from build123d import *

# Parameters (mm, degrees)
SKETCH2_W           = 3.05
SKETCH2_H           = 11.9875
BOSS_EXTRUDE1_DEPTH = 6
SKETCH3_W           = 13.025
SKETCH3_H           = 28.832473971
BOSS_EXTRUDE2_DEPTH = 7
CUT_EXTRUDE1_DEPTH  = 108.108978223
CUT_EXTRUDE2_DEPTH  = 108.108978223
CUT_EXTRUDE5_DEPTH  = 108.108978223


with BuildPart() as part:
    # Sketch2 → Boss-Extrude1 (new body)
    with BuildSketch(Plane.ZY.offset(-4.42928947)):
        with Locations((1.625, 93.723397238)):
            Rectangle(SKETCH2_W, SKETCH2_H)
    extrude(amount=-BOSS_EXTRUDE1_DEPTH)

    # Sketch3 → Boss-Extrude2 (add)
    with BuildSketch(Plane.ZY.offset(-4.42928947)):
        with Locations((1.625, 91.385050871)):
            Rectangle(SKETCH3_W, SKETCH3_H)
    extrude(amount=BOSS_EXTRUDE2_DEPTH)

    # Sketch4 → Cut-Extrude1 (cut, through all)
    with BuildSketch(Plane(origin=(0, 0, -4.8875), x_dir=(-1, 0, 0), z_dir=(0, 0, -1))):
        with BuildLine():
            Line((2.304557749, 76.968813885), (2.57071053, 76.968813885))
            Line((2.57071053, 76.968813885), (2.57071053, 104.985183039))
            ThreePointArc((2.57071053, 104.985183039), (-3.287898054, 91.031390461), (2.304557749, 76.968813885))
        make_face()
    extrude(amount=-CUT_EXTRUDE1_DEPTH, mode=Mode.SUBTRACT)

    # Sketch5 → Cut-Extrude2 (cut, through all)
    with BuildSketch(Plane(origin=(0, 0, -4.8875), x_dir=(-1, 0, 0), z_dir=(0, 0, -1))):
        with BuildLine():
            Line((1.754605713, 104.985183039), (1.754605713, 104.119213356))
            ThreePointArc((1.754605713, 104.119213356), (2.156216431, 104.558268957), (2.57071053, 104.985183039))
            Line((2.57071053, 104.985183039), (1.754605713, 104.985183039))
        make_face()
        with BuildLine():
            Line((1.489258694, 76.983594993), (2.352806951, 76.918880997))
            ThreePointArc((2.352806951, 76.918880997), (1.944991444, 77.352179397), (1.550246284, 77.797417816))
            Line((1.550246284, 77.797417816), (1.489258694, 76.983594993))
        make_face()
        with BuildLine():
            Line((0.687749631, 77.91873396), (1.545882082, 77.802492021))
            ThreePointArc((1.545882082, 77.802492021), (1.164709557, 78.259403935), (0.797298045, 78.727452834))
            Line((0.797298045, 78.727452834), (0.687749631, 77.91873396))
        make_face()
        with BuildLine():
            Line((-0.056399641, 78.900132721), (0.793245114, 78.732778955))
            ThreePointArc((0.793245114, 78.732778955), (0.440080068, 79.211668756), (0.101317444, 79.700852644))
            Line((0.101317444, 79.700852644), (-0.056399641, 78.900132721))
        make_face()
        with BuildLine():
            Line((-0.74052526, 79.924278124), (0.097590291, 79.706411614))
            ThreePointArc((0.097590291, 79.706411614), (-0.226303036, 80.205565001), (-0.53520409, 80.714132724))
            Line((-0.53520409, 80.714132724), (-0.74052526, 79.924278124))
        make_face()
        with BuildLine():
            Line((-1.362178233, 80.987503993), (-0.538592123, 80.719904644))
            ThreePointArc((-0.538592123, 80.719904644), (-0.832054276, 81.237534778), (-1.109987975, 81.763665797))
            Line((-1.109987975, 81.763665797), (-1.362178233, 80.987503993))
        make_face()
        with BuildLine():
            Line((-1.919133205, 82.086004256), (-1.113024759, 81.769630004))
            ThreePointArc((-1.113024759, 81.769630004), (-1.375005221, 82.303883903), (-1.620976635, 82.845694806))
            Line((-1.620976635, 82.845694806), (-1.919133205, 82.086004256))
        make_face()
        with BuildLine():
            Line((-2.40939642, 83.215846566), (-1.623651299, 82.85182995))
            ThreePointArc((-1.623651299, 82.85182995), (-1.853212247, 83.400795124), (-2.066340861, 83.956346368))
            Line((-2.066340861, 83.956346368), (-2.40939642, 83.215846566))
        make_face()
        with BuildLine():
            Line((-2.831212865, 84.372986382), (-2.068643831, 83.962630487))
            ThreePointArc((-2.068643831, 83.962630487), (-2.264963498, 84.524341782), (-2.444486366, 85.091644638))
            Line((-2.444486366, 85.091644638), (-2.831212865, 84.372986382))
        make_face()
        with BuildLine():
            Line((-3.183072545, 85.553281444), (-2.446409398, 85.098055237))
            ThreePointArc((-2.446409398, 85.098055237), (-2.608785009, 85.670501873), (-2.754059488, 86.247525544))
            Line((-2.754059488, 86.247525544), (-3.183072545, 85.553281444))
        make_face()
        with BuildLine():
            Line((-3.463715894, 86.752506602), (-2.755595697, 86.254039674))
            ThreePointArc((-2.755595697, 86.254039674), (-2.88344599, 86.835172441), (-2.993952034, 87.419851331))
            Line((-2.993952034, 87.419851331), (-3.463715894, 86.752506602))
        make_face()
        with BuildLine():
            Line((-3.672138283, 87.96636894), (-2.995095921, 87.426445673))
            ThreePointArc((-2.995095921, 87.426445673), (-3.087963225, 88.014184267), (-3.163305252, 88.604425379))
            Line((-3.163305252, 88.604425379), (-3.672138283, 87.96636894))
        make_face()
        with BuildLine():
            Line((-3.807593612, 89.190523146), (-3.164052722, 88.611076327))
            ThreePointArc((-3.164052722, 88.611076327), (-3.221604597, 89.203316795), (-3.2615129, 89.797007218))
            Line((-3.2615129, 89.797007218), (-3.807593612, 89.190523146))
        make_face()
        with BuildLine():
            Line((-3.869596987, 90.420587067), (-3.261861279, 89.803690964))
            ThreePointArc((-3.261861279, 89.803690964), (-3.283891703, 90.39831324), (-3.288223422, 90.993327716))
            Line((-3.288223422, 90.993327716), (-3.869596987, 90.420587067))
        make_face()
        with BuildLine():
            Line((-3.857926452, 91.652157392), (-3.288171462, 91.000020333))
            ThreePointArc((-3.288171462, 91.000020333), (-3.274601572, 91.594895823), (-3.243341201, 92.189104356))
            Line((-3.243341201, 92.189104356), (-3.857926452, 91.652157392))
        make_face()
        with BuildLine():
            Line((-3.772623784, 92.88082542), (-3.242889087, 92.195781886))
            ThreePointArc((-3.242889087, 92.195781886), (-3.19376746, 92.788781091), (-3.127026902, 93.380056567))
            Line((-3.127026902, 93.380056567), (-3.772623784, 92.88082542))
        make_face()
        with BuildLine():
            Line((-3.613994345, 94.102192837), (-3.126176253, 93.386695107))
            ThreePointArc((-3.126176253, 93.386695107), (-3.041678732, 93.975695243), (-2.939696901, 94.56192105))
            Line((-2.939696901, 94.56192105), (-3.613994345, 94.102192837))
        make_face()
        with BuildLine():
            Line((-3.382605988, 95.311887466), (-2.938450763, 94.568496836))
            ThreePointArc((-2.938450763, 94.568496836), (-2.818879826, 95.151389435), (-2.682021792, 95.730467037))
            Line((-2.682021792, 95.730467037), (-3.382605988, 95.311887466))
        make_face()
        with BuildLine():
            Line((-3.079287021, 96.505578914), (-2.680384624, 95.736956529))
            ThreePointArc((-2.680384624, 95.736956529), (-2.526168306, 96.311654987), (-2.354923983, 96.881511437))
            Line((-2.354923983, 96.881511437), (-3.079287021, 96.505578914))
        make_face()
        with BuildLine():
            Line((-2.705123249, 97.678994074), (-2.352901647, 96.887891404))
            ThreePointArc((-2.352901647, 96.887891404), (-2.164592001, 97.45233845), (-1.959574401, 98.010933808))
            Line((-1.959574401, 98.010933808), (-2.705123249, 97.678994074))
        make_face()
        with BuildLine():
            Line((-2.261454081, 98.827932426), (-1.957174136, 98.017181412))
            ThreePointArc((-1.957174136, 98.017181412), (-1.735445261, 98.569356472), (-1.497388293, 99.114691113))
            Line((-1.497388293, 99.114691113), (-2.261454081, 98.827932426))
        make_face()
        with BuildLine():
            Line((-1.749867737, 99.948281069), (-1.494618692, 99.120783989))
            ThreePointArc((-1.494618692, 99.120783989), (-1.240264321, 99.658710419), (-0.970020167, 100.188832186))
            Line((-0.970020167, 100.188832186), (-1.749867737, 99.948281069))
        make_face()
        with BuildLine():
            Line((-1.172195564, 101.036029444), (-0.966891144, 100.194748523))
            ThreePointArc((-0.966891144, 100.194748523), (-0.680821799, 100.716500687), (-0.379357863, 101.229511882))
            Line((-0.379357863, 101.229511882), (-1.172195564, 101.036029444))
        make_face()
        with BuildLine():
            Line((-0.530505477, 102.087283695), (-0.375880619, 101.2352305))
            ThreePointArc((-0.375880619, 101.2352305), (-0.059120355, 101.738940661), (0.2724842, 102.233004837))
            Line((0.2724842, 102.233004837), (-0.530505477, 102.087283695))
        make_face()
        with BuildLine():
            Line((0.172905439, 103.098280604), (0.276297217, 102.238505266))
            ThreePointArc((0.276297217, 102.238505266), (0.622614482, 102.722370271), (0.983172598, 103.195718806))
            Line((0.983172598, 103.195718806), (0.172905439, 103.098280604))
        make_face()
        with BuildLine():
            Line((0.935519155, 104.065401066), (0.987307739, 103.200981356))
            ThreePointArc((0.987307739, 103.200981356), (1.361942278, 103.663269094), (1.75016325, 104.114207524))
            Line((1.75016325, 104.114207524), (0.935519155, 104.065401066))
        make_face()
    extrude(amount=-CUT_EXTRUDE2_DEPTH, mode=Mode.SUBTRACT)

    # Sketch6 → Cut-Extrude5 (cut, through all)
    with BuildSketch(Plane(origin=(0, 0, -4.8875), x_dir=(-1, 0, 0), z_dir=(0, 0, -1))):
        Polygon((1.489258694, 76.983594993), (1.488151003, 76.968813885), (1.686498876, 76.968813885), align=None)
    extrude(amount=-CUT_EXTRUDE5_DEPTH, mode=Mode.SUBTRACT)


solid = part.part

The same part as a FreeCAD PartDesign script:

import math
import FreeCAD as App
import Part
import Sketcher
Q = App.Units.Quantity


def add_polygon(sketch, points):
    """Adds a closed chain of lines whose ends are joined by coincident constraints."""
    first, n = sketch.GeometryCount, len(points)
    for a, b in zip(points, points[1:] + points[:1]):
        sketch.addGeometry(Part.LineSegment(App.Vector(*a, 0), App.Vector(*b, 0)), False)
    for i in range(n):
        sketch.addConstraint(Sketcher.Constraint("Coincident", first + i, 2, first + (i + 1) % n, 1))

doc = App.newDocument("Part")
body = doc.addObject("PartDesign::Body", "Body")

sketch1 = body.newObject("Sketcher::SketchObject", "Sketch")
sketch1.AttachmentSupport = (doc.getObject("YZ_Plane"), [""])
sketch1.MapMode = "FlatFace"
sketch1.AttachmentOffset = App.Placement(App.Vector(0, 0, 4.429289), App.Rotation())
add_polygon(sketch1, [(99.7, 0.1), (87.7, 0.1), (87.7, 3.1), (99.7, 3.1)])
sketch1.addConstraint(Sketcher.Constraint("Horizontal", 0))
sketch1.addConstraint(Sketcher.Constraint("Vertical", 1))
sketch1.addConstraint(Sketcher.Constraint("Horizontal", 2))
sketch1.addConstraint(Sketcher.Constraint("Vertical", 3))
sketch1.addConstraint(Sketcher.Constraint("DistanceY", 1, 1, 1, 2, 3.05))
sketch1.addConstraint(Sketcher.Constraint("DistanceY", -1, 1, 0, 2, 0.1))
sketch1.addConstraint(Sketcher.Constraint("DistanceX", 0, 2, 0, 1, 11.9875))
sketch1.addConstraint(Sketcher.Constraint("DistanceX", -1, 1, 0, 2, 87.729647))
pad1 = body.newObject("PartDesign::Pad", "Pad")
pad1.Profile = sketch1
pad1.Length = 6

sketch2 = body.newObject("Sketcher::SketchObject", "Sketch001")
sketch2.AttachmentSupport = (doc.getObject("YZ_Plane"), [""])
sketch2.MapMode = "FlatFace"
sketch2.AttachmentOffset = App.Placement(App.Vector(0, 0, 4.429289), App.Rotation())
add_polygon(sketch2, [(106, -5), (77, -5), (77, 8), (106, 8)])
sketch2.addConstraint(Sketcher.Constraint("Horizontal", 0))
sketch2.addConstraint(Sketcher.Constraint("Vertical", 1))
sketch2.addConstraint(Sketcher.Constraint("Horizontal", 2))
sketch2.addConstraint(Sketcher.Constraint("Vertical", 3))
sketch2.addConstraint(Sketcher.Constraint("DistanceY", 1, 1, 1, 2, 13.025))
sketch2.addConstraint(Sketcher.Constraint("DistanceY", 0, 2, -1, 1, 4.8875))
sketch2.addConstraint(Sketcher.Constraint("DistanceX", 0, 2, 0, 1, 28.832474))
sketch2.addConstraint(Sketcher.Constraint("DistanceX", -1, 1, 0, 2, 76.968814))
pad2 = body.newObject("PartDesign::Pad", "Pad001")
pad2.Profile = sketch2
pad2.Length = 7
pad2.Reversed = True

sketch3 = body.newObject("Sketcher::SketchObject", "Sketch002")
sketch3.AttachmentSupport = (doc.getObject("XY_Plane"), [""])
sketch3.MapMode = "FlatFace"
sketch3.AttachmentOffset = App.Placement(App.Vector(0, 0, -4.8875), App.Rotation())
sketch3.addGeometry(Part.LineSegment(App.Vector(-2.3, 76.97, 0), App.Vector(-2.57, 76.97, 0)), False)
sketch3.addGeometry(Part.LineSegment(App.Vector(-2.57, 76.97, 0), App.Vector(-2.57, 104.99, 0)), False)
sketch3.addGeometry(Part.ArcOfCircle(Part.Circle(App.Vector(-16.71, 90.84, 0), App.Vector(0, 0, 1), 20), math.radians(-44), math.radians(45)), False)
sketch3.addConstraint(Sketcher.Constraint("Coincident", 0, 2, 1, 1))
sketch3.addConstraint(Sketcher.Constraint("Coincident", 1, 2, 2, 2))
sketch3.addConstraint(Sketcher.Constraint("Coincident", 2, 1, 0, 1))
sketch3.addConstraint(Sketcher.Constraint("Horizontal", 0))
sketch3.addConstraint(Sketcher.Constraint("Vertical", 1))
sketch3.addConstraint(Sketcher.Constraint("Radius", 2, 20.0))
sketch3.addConstraint(Sketcher.Constraint("DistanceY", 1, 1, 1, 2, 28.016369))
sketch3.addConstraint(Sketcher.Constraint("DistanceX", 2, 3, -1, 1, 16.7112))
sketch3.addConstraint(Sketcher.Constraint("DistanceY", -1, 1, 2, 3, 90.841401))
sketch3.addConstraint(Sketcher.Constraint("DistanceX", 0, 2, 0, 1, 0.266153))
pocket1 = body.newObject("PartDesign::Pocket", "Pocket")
pocket1.Profile = sketch3
pocket1.Type = "ThroughAll"
pocket1.Reversed = True

sketch4 = body.newObject("Sketcher::SketchObject", "Sketch003")
sketch4.AttachmentSupport = (doc.getObject("XY_Plane"), [""])
sketch4.MapMode = "FlatFace"
sketch4.AttachmentOffset = App.Placement(App.Vector(0, 0, -4.8875), App.Rotation())
sketch4.addGeometry(Part.LineSegment(App.Vector(-1.8, 105, 0), App.Vector(-1.8, 104.1, 0)), False)
sketch4.addGeometry(Part.ArcOfCircle(Part.Circle(App.Vector(-16.7, 90.8, 0), App.Vector(0, 0, 1), 20), math.radians(41.6), math.radians(45.01)), False)
sketch4.addGeometry(Part.LineSegment(App.Vector(-2.6, 105, 0), App.Vector(-1.8, 105, 0)), False)
sketch4.addGeometry(Part.LineSegment(App.Vector(-1.5, 77, 0), App.Vector(-2.4, 76.9, 0)), False)
sketch4.addGeometry(Part.ArcOfCircle(Part.Circle(App.Vector(-16.7, 90.8, 0), App.Vector(0, 0, 1), 20), math.radians(-44.12), math.radians(-40.71)), False)
sketch4.addGeometry(Part.LineSegment(App.Vector(-1.6, 77.8, 0), App.Vector(-1.5, 77, 0)), False)
sketch4.addGeometry(Part.LineSegment(App.Vector(-0.7, 77.9, 0), App.Vector(-1.5, 77.8, 0)), False)
sketch4.addGeometry(Part.ArcOfCircle(Part.Circle(App.Vector(-16.7, 90.8, 0), App.Vector(0, 0, 1), 20), math.radians(-40.69), math.radians(-37.28)), False)
sketch4.addGeometry(Part.LineSegment(App.Vector(-0.8, 78.7, 0), App.Vector(-0.7, 77.9, 0)), False)
sketch4.addGeometry(Part.LineSegment(App.Vector(0.1, 78.9, 0), App.Vector(-0.8, 78.7, 0)), False)
sketch4.addGeometry(Part.ArcOfCircle(Part.Circle(App.Vector(-16.7, 90.8, 0), App.Vector(0, 0, 1), 20), math.radians(-37.26), math.radians(-33.85)), False)
sketch4.addGeometry(Part.LineSegment(App.Vector(-0.1, 79.7, 0), App.Vector(0.1, 78.9, 0)), False)
sketch4.addGeometry(Part.LineSegment(App.Vector(0.7, 79.9, 0), App.Vector(-0.1, 79.7, 0)), False)
sketch4.addGeometry(Part.ArcOfCircle(Part.Circle(App.Vector(-16.7, 90.8, 0), App.Vector(0, 0, 1), 20), math.radians(-33.83), math.radians(-30.42)), False)
sketch4.addGeometry(Part.LineSegment(App.Vector(0.5, 80.7, 0), App.Vector(0.7, 79.9, 0)), False)
sketch4.addGeometry(Part.LineSegment(App.Vector(1.4, 81, 0), App.Vector(0.5, 80.7, 0)), False)
sketch4.addGeometry(Part.ArcOfCircle(Part.Circle(App.Vector(-16.7, 90.8, 0), App.Vector(0, 0, 1), 20), math.radians(-30.4), math.radians(-26.99)), False)
sketch4.addGeometry(Part.LineSegment(App.Vector(1.1, 81.8, 0), App.Vector(1.4, 81, 0)), False)
sketch4.addGeometry(Part.LineSegment(App.Vector(1.9, 82.1, 0), App.Vector(1.1, 81.8, 0)), False)
sketch4.addGeometry(Part.ArcOfCircle(Part.Circle(App.Vector(-16.7, 90.8, 0), App.Vector(0, 0, 1), 20), math.radians(-26.97), math.radians(-23.56)), False)
sketch4.addGeometry(Part.LineSegment(App.Vector(1.6, 82.8, 0), App.Vector(1.9, 82.1, 0)), False)
sketch4.addGeometry(Part.LineSegment(App.Vector(2.4, 83.2, 0), App.Vector(1.6, 82.9, 0)), False)
sketch4.addGeometry(Part.ArcOfCircle(Part.Circle(App.Vector(-16.7, 90.8, 0), App.Vector(0, 0, 1), 20), math.radians(-23.55), math.radians(-20.14)), False)
sketch4.addGeometry(Part.LineSegment(App.Vector(2.1, 84, 0), App.Vector(2.4, 83.2, 0)), False)
sketch4.addGeometry(Part.LineSegment(App.Vector(2.8, 84.4, 0), App.Vector(2.1, 84, 0)), False)
sketch4.addGeometry(Part.ArcOfCircle(Part.Circle(App.Vector(-16.7, 90.8, 0), App.Vector(0, 0, 1), 20), math.radians(-20.12), math.radians(-16.71)), False)
sketch4.addGeometry(Part.LineSegment(App.Vector(2.4, 85.1, 0), App.Vector(2.8, 84.4, 0)), False)
sketch4.addGeometry(Part.LineSegment(App.Vector(3.2, 85.6, 0), App.Vector(2.4, 85.1, 0)), False)
sketch4.addGeometry(Part.ArcOfCircle(Part.Circle(App.Vector(-16.7, 90.8, 0), App.Vector(0, 0, 1), 20), math.radians(-16.69), math.radians(-13.28)), False)
sketch4.addGeometry(Part.LineSegment(App.Vector(2.8, 86.2, 0), App.Vector(3.2, 85.6, 0)), False)
sketch4.addGeometry(Part.LineSegment(App.Vector(3.5, 86.8, 0), App.Vector(2.8, 86.3, 0)), False)
sketch4.addGeometry(Part.ArcOfCircle(Part.Circle(App.Vector(-16.7, 90.8, 0), App.Vector(0, 0, 1), 20), math.radians(-13.26), math.radians(-9.85)), False)
sketch4.addGeometry(Part.LineSegment(App.Vector(3, 87.4, 0), App.Vector(3.5, 86.8, 0)), False)
sketch4.addGeometry(Part.LineSegment(App.Vector(3.7, 88, 0), App.Vector(3, 87.4, 0)), False)
sketch4.addGeometry(Part.ArcOfCircle(Part.Circle(App.Vector(-16.7, 90.8, 0), App.Vector(0, 0, 1), 20), math.radians(-9.83), math.radians(-6.42)), False)
sketch4.addGeometry(Part.LineSegment(App.Vector(3.2, 88.6, 0), App.Vector(3.7, 88, 0)), False)
sketch4.addGeometry(Part.LineSegment(App.Vector(3.8, 89.2, 0), App.Vector(3.2, 88.6, 0)), False)
sketch4.addGeometry(Part.ArcOfCircle(Part.Circle(App.Vector(-16.7, 90.8, 0), App.Vector(0, 0, 1), 20), math.radians(-6.4), math.radians(-2.99)), False)
sketch4.addGeometry(Part.LineSegment(App.Vector(3.3, 89.8, 0), App.Vector(3.8, 89.2, 0)), False)
sketch4.addGeometry(Part.LineSegment(App.Vector(3.9, 90.4, 0), App.Vector(3.3, 89.8, 0)), False)
sketch4.addGeometry(Part.ArcOfCircle(Part.Circle(App.Vector(-16.7, 90.8, 0), App.Vector(0, 0, 1), 20), math.radians(-2.97), math.radians(0.44)), False)
sketch4.addGeometry(Part.LineSegment(App.Vector(3.3, 91, 0), App.Vector(3.9, 90.4, 0)), False)
sketch4.addGeometry(Part.LineSegment(App.Vector(3.9, 91.7, 0), App.Vector(3.3, 91, 0)), False)
sketch4.addGeometry(Part.ArcOfCircle(Part.Circle(App.Vector(-16.7, 90.8, 0), App.Vector(0, 0, 1), 20), math.radians(0.45), math.radians(3.86)), False)
sketch4.addGeometry(Part.LineSegment(App.Vector(3.2, 92.2, 0), App.Vector(3.9, 91.7, 0)), False)
sketch4.addGeometry(Part.LineSegment(App.Vector(3.8, 92.9, 0), App.Vector(3.2, 92.2, 0)), False)
sketch4.addGeometry(Part.ArcOfCircle(Part.Circle(App.Vector(-16.7, 90.8, 0), App.Vector(0, 0, 1), 20), math.radians(3.88), math.radians(7.29)), False)
sketch4.addGeometry(Part.LineSegment(App.Vector(3.1, 93.4, 0), App.Vector(3.8, 92.9, 0)), False)
sketch4.addGeometry(Part.LineSegment(App.Vector(3.6, 94.1, 0), App.Vector(3.1, 93.4, 0)), False)
sketch4.addGeometry(Part.ArcOfCircle(Part.Circle(App.Vector(-16.7, 90.8, 0), App.Vector(0, 0, 1), 20), math.radians(7.31), math.radians(10.72)), False)
sketch4.addGeometry(Part.LineSegment(App.Vector(2.9, 94.6, 0), App.Vector(3.6, 94.1, 0)), False)
sketch4.addGeometry(Part.LineSegment(App.Vector(3.4, 95.3, 0), App.Vector(2.9, 94.6, 0)), False)
sketch4.addGeometry(Part.ArcOfCircle(Part.Circle(App.Vector(-16.7, 90.8, 0), App.Vector(0, 0, 1), 20), math.radians(10.74), math.radians(14.15)), False)
sketch4.addGeometry(Part.LineSegment(App.Vector(2.7, 95.7, 0), App.Vector(3.4, 95.3, 0)), False)
sketch4.addGeometry(Part.LineSegment(App.Vector(3.1, 96.5, 0), App.Vector(2.7, 95.7, 0)), False)
sketch4.addGeometry(Part.ArcOfCircle(Part.Circle(App.Vector(-16.7, 90.8, 0), App.Vector(0, 0, 1), 20), math.radians(14.17), math.radians(17.58)), False)
sketch4.addGeometry(Part.LineSegment(App.Vector(2.4, 96.9, 0), App.Vector(3.1, 96.5, 0)), False)
sketch4.addGeometry(Part.LineSegment(App.Vector(2.7, 97.7, 0), App.Vector(2.4, 96.9, 0)), False)
sketch4.addGeometry(Part.ArcOfCircle(Part.Circle(App.Vector(-16.7, 90.8, 0), App.Vector(0, 0, 1), 20), math.radians(17.6), math.radians(21.01)), False)
sketch4.addGeometry(Part.LineSegment(App.Vector(2, 98, 0), App.Vector(2.7, 97.7, 0)), False)
sketch4.addGeometry(Part.LineSegment(App.Vector(2.3, 98.8, 0), App.Vector(2, 98, 0)), False)
sketch4.addGeometry(Part.ArcOfCircle(Part.Circle(App.Vector(-16.7, 90.8, 0), App.Vector(0, 0, 1), 20), math.radians(21.03), math.radians(24.44)), False)
sketch4.addGeometry(Part.LineSegment(App.Vector(1.5, 99.1, 0), App.Vector(2.3, 98.8, 0)), False)
sketch4.addGeometry(Part.LineSegment(App.Vector(1.7, 99.9, 0), App.Vector(1.5, 99.1, 0)), False)
sketch4.addGeometry(Part.ArcOfCircle(Part.Circle(App.Vector(-16.7, 90.8, 0), App.Vector(0, 0, 1), 20), math.radians(24.45), math.radians(27.86)), False)
sketch4.addGeometry(Part.LineSegment(App.Vector(1, 100.2, 0), App.Vector(1.7, 99.9, 0)), False)
sketch4.addGeometry(Part.LineSegment(App.Vector(1.2, 101, 0), App.Vector(1, 100.2, 0)), False)
sketch4.addGeometry(Part.ArcOfCircle(Part.Circle(App.Vector(-16.7, 90.8, 0), App.Vector(0, 0, 1), 20), math.radians(27.88), math.radians(31.29)), False)
sketch4.addGeometry(Part.LineSegment(App.Vector(0.4, 101.2, 0), App.Vector(1.2, 101, 0)), False)
sketch4.addGeometry(Part.LineSegment(App.Vector(0.5, 102.1, 0), App.Vector(0.4, 101.2, 0)), False)
sketch4.addGeometry(Part.ArcOfCircle(Part.Circle(App.Vector(-16.7, 90.8, 0), App.Vector(0, 0, 1), 20), math.radians(31.31), math.radians(34.72)), False)
sketch4.addGeometry(Part.LineSegment(App.Vector(-0.3, 102.2, 0), App.Vector(0.5, 102.1, 0)), False)
sketch4.addGeometry(Part.LineSegment(App.Vector(-0.2, 103.1, 0), App.Vector(-0.3, 102.2, 0)), False)
sketch4.addGeometry(Part.ArcOfCircle(Part.Circle(App.Vector(-16.7, 90.8, 0), App.Vector(0, 0, 1), 20), math.radians(34.74), math.radians(38.15)), False)
sketch4.addGeometry(Part.LineSegment(App.Vector(-1, 103.2, 0), App.Vector(-0.2, 103.1, 0)), False)
sketch4.addGeometry(Part.LineSegment(App.Vector(-0.9, 104.1, 0), App.Vector(-1, 103.2, 0)), False)
sketch4.addGeometry(Part.ArcOfCircle(Part.Circle(App.Vector(-16.7, 90.8, 0), App.Vector(0, 0, 1), 20), math.radians(38.17), math.radians(41.58)), False)
sketch4.addGeometry(Part.LineSegment(App.Vector(-1.8, 104.1, 0), App.Vector(-0.9, 104.1, 0)), False)
sketch4.addConstraint(Sketcher.Constraint("Coincident", 0, 2, 1, 1))
sketch4.addConstraint(Sketcher.Constraint("Coincident", 1, 2, 2, 1))
sketch4.addConstraint(Sketcher.Constraint("Coincident", 2, 2, 0, 1))
sketch4.addConstraint(Sketcher.Constraint("Coincident", 3, 2, 4, 1))
sketch4.addConstraint(Sketcher.Constraint("Coincident", 4, 2, 5, 1))
sketch4.addConstraint(Sketcher.Constraint("Coincident", 5, 2, 3, 1))
sketch4.addConstraint(Sketcher.Constraint("Coincident", 6, 2, 7, 1))
sketch4.addConstraint(Sketcher.Constraint("Coincident", 7, 2, 8, 1))
sketch4.addConstraint(Sketcher.Constraint("Coincident", 8, 2, 6, 1))
sketch4.addConstraint(Sketcher.Constraint("Coincident", 9, 2, 10, 1))
sketch4.addConstraint(Sketcher.Constraint("Coincident", 10, 2, 11, 1))
sketch4.addConstraint(Sketcher.Constraint("Coincident", 11, 2, 9, 1))
sketch4.addConstraint(Sketcher.Constraint("Coincident", 12, 2, 13, 1))
sketch4.addConstraint(Sketcher.Constraint("Coincident", 13, 2, 14, 1))
sketch4.addConstraint(Sketcher.Constraint("Coincident", 14, 2, 12, 1))
sketch4.addConstraint(Sketcher.Constraint("Coincident", 15, 2, 16, 1))
sketch4.addConstraint(Sketcher.Constraint("Coincident", 16, 2, 17, 1))
sketch4.addConstraint(Sketcher.Constraint("Coincident", 17, 2, 15, 1))
sketch4.addConstraint(Sketcher.Constraint("Coincident", 18, 2, 19, 1))
sketch4.addConstraint(Sketcher.Constraint("Coincident", 19, 2, 20, 1))
sketch4.addConstraint(Sketcher.Constraint("Coincident", 20, 2, 18, 1))
sketch4.addConstraint(Sketcher.Constraint("Coincident", 21, 2, 22, 1))
sketch4.addConstraint(Sketcher.Constraint("Coincident", 22, 2, 23, 1))
sketch4.addConstraint(Sketcher.Constraint("Coincident", 23, 2, 21, 1))
sketch4.addConstraint(Sketcher.Constraint("Coincident", 24, 2, 25, 1))
sketch4.addConstraint(Sketcher.Constraint("Coincident", 25, 2, 26, 1))
sketch4.addConstraint(Sketcher.Constraint("Coincident", 26, 2, 24, 1))
sketch4.addConstraint(Sketcher.Constraint("Coincident", 27, 2, 28, 1))
sketch4.addConstraint(Sketcher.Constraint("Coincident", 28, 2, 29, 1))
sketch4.addConstraint(Sketcher.Constraint("Coincident", 29, 2, 27, 1))
sketch4.addConstraint(Sketcher.Constraint("Coincident", 30, 2, 31, 1))
sketch4.addConstraint(Sketcher.Constraint("Coincident", 31, 2, 32, 1))
sketch4.addConstraint(Sketcher.Constraint("Coincident", 32, 2, 30, 1))
sketch4.addConstraint(Sketcher.Constraint("Coincident", 33, 2, 34, 1))
sketch4.addConstraint(Sketcher.Constraint("Coincident", 34, 2, 35, 1))
sketch4.addConstraint(Sketcher.Constraint("Coincident", 35, 2, 33, 1))
sketch4.addConstraint(Sketcher.Constraint("Coincident", 36, 2, 37, 1))
sketch4.addConstraint(Sketcher.Constraint("Coincident", 37, 2, 38, 1))
sketch4.addConstraint(Sketcher.Constraint("Coincident", 38, 2, 36, 1))
sketch4.addConstraint(Sketcher.Constraint("Coincident", 39, 2, 40, 1))
sketch4.addConstraint(Sketcher.Constraint("Coincident", 40, 2, 41, 1))
sketch4.addConstraint(Sketcher.Constraint("Coincident", 41, 2, 39, 1))
sketch4.addConstraint(Sketcher.Constraint("Coincident", 42, 2, 43, 1))
sketch4.addConstraint(Sketcher.Constraint("Coincident", 43, 2, 44, 1))
sketch4.addConstraint(Sketcher.Constraint("Coincident", 44, 2, 42, 1))
sketch4.addConstraint(Sketcher.Constraint("Coincident", 45, 2, 46, 1))
sketch4.addConstraint(Sketcher.Constraint("Coincident", 46, 2, 47, 1))
sketch4.addConstraint(Sketcher.Constraint("Coincident", 47, 2, 45, 1))
sketch4.addConstraint(Sketcher.Constraint("Coincident", 48, 2, 49, 1))
sketch4.addConstraint(Sketcher.Constraint("Coincident", 49, 2, 50, 1))
sketch4.addConstraint(Sketcher.Constraint("Coincident", 50, 2, 48, 1))
sketch4.addConstraint(Sketcher.Constraint("Coincident", 51, 2, 52, 1))
sketch4.addConstraint(Sketcher.Constraint("Coincident", 52, 2, 53, 1))
sketch4.addConstraint(Sketcher.Constraint("Coincident", 53, 2, 51, 1))
sketch4.addConstraint(Sketcher.Constraint("Coincident", 54, 2, 55, 1))
sketch4.addConstraint(Sketcher.Constraint("Coincident", 55, 2, 56, 1))
sketch4.addConstraint(Sketcher.Constraint("Coincident", 56, 2, 54, 1))
sketch4.addConstraint(Sketcher.Constraint("Coincident", 57, 2, 58, 1))
sketch4.addConstraint(Sketcher.Constraint("Coincident", 58, 2, 59, 1))
sketch4.addConstraint(Sketcher.Constraint("Coincident", 59, 2, 57, 1))
sketch4.addConstraint(Sketcher.Constraint("Coincident", 60, 2, 61, 1))
sketch4.addConstraint(Sketcher.Constraint("Coincident", 61, 2, 62, 1))
sketch4.addConstraint(Sketcher.Constraint("Coincident", 62, 2, 60, 1))
sketch4.addConstraint(Sketcher.Constraint("Coincident", 63, 2, 64, 1))
sketch4.addConstraint(Sketcher.Constraint("Coincident", 64, 2, 65, 1))
sketch4.addConstraint(Sketcher.Constraint("Coincident", 65, 2, 63, 1))
sketch4.addConstraint(Sketcher.Constraint("Coincident", 66, 2, 67, 1))
sketch4.addConstraint(Sketcher.Constraint("Coincident", 67, 2, 68, 1))
sketch4.addConstraint(Sketcher.Constraint("Coincident", 68, 2, 66, 1))
sketch4.addConstraint(Sketcher.Constraint("Coincident", 69, 2, 70, 1))
sketch4.addConstraint(Sketcher.Constraint("Coincident", 70, 2, 71, 1))
sketch4.addConstraint(Sketcher.Constraint("Coincident", 71, 2, 69, 1))
sketch4.addConstraint(Sketcher.Constraint("Coincident", 72, 2, 73, 1))
sketch4.addConstraint(Sketcher.Constraint("Coincident", 73, 2, 74, 1))
sketch4.addConstraint(Sketcher.Constraint("Coincident", 74, 2, 72, 1))
sketch4.addConstraint(Sketcher.Constraint("Coincident", 75, 2, 76, 1))
sketch4.addConstraint(Sketcher.Constraint("Coincident", 76, 2, 77, 1))
sketch4.addConstraint(Sketcher.Constraint("Coincident", 77, 2, 75, 1))
sketch4.addConstraint(Sketcher.Constraint("Vertical", 0))
sketch4.addConstraint(Sketcher.Constraint("Horizontal", 2))
sketch4.addConstraint(Sketcher.Constraint("Coincident", 4, 3, 1, 3))
sketch4.addConstraint(Sketcher.Constraint("Coincident", 7, 3, 1, 3))
sketch4.addConstraint(Sketcher.Constraint("Coincident", 10, 3, 1, 3))
sketch4.addConstraint(Sketcher.Constraint("Coincident", 13, 3, 1, 3))
sketch4.addConstraint(Sketcher.Constraint("Coincident", 16, 3, 1, 3))
sketch4.addConstraint(Sketcher.Constraint("Coincident", 19, 3, 1, 3))
sketch4.addConstraint(Sketcher.Constraint("Coincident", 22, 3, 1, 3))
sketch4.addConstraint(Sketcher.Constraint("Coincident", 25, 3, 1, 3))
sketch4.addConstraint(Sketcher.Constraint("Coincident", 28, 3, 1, 3))
sketch4.addConstraint(Sketcher.Constraint("Coincident", 31, 3, 1, 3))
sketch4.addConstraint(Sketcher.Constraint("Coincident", 34, 3, 1, 3))
sketch4.addConstraint(Sketcher.Constraint("Coincident", 37, 3, 1, 3))
sketch4.addConstraint(Sketcher.Constraint("Coincident", 40, 3, 1, 3))
sketch4.addConstraint(Sketcher.Constraint("Coincident", 43, 3, 1, 3))
sketch4.addConstraint(Sketcher.Constraint("Coincident", 46, 3, 1, 3))
sketch4.addConstraint(Sketcher.Constraint("Coincident", 49, 3, 1, 3))
sketch4.addConstraint(Sketcher.Constraint("Coincident", 52, 3, 1, 3))
sketch4.addConstraint(Sketcher.Constraint("Coincident", 55, 3, 1, 3))
sketch4.addConstraint(Sketcher.Constraint("Coincident", 58, 3, 1, 3))
sketch4.addConstraint(Sketcher.Constraint("Coincident", 61, 3, 1, 3))
sketch4.addConstraint(Sketcher.Constraint("Coincident", 64, 3, 1, 3))
sketch4.addConstraint(Sketcher.Constraint("Coincident", 67, 3, 1, 3))
sketch4.addConstraint(Sketcher.Constraint("Coincident", 70, 3, 1, 3))
sketch4.addConstraint(Sketcher.Constraint("Coincident", 73, 3, 1, 3))
sketch4.addConstraint(Sketcher.Constraint("Coincident", 76, 3, 1, 3))
sketch4.addConstraint(Sketcher.Constraint("Equal", 1, 4))
sketch4.addConstraint(Sketcher.Constraint("Equal", 4, 10))
sketch4.addConstraint(Sketcher.Constraint("Equal", 10, 13))
sketch4.addConstraint(Sketcher.Constraint("Equal", 13, 16))
sketch4.addConstraint(Sketcher.Constraint("Equal", 16, 19))
sketch4.addConstraint(Sketcher.Constraint("Equal", 19, 22))
sketch4.addConstraint(Sketcher.Constraint("Equal", 13, 25))
sketch4.addConstraint(Sketcher.Constraint("Equal", 25, 28))
sketch4.addConstraint(Sketcher.Constraint("Equal", 28, 31))
sketch4.addConstraint(Sketcher.Constraint("Equal", 31, 34))
sketch4.addConstraint(Sketcher.Constraint("Equal", 31, 37))
sketch4.addConstraint(Sketcher.Constraint("Equal", 37, 40))
sketch4.addConstraint(Sketcher.Constraint("Equal", 40, 43))
sketch4.addConstraint(Sketcher.Constraint("Equal", 43, 46))
sketch4.addConstraint(Sketcher.Constraint("Equal", 46, 49))
sketch4.addConstraint(Sketcher.Constraint("Equal", 46, 52))
sketch4.addConstraint(Sketcher.Constraint("Equal", 49, 55))
sketch4.addConstraint(Sketcher.Constraint("Equal", 55, 58))
sketch4.addConstraint(Sketcher.Constraint("Equal", 58, 61))
sketch4.addConstraint(Sketcher.Constraint("Equal", 61, 64))
sketch4.addConstraint(Sketcher.Constraint("Equal", 64, 67))
sketch4.addConstraint(Sketcher.Constraint("Equal", 67, 70))
sketch4.addConstraint(Sketcher.Constraint("Equal", 70, 73))
sketch4.addConstraint(Sketcher.Constraint("Equal", 73, 76))
sketch4.addConstraint(Sketcher.Constraint("Perpendicular", 3, 5))
sketch4.addConstraint(Sketcher.Constraint("Perpendicular", 6, 8))
sketch4.addConstraint(Sketcher.Constraint("Perpendicular", 9, 11))
sketch4.addConstraint(Sketcher.Constraint("Perpendicular", 12, 14))
sketch4.addConstraint(Sketcher.Constraint("Perpendicular", 15, 17))
sketch4.addConstraint(Sketcher.Constraint("Perpendicular", 18, 20))
sketch4.addConstraint(Sketcher.Constraint("Perpendicular", 21, 23))
sketch4.addConstraint(Sketcher.Constraint("Perpendicular", 24, 26))
sketch4.addConstraint(Sketcher.Constraint("Perpendicular", 27, 29))
sketch4.addConstraint(Sketcher.Constraint("Perpendicular", 30, 32))
sketch4.addConstraint(Sketcher.Constraint("Perpendicular", 33, 35))
sketch4.addConstraint(Sketcher.Constraint("Perpendicular", 36, 38))
sketch4.addConstraint(Sketcher.Constraint("Perpendicular", 39, 41))
sketch4.addConstraint(Sketcher.Constraint("Perpendicular", 42, 44))
sketch4.addConstraint(Sketcher.Constraint("Perpendicular", 45, 47))
sketch4.addConstraint(Sketcher.Constraint("Perpendicular", 48, 50))
sketch4.addConstraint(Sketcher.Constraint("Perpendicular", 51, 53))
sketch4.addConstraint(Sketcher.Constraint("Perpendicular", 54, 56))
sketch4.addConstraint(Sketcher.Constraint("Perpendicular", 57, 59))
sketch4.addConstraint(Sketcher.Constraint("Perpendicular", 60, 62))
sketch4.addConstraint(Sketcher.Constraint("Perpendicular", 63, 65))
sketch4.addConstraint(Sketcher.Constraint("Perpendicular", 66, 68))
sketch4.addConstraint(Sketcher.Constraint("Perpendicular", 69, 71))
sketch4.addConstraint(Sketcher.Constraint("Perpendicular", 72, 74))
sketch4.addConstraint(Sketcher.Constraint("Perpendicular", 75, 77))
sketch4.addConstraint(Sketcher.Constraint("Equal", 3, 6))
sketch4.addConstraint(Sketcher.Constraint("Equal", 5, 8))
sketch4.addConstraint(Sketcher.Constraint("Equal", 6, 9))
sketch4.addConstraint(Sketcher.Constraint("Equal", 8, 11))
sketch4.addConstraint(Sketcher.Constraint("Equal", 9, 12))
sketch4.addConstraint(Sketcher.Constraint("Equal", 11, 14))
sketch4.addConstraint(Sketcher.Constraint("Equal", 12, 15))
sketch4.addConstraint(Sketcher.Constraint("Equal", 14, 17))
sketch4.addConstraint(Sketcher.Constraint("Equal", 15, 18))
sketch4.addConstraint(Sketcher.Constraint("Equal", 17, 20))
sketch4.addConstraint(Sketcher.Constraint("Equal", 18, 21))
sketch4.addConstraint(Sketcher.Constraint("Equal", 20, 23))
sketch4.addConstraint(Sketcher.Constraint("Equal", 21, 24))
sketch4.addConstraint(Sketcher.Constraint("Equal", 23, 26))
sketch4.addConstraint(Sketcher.Constraint("Equal", 24, 27))
sketch4.addConstraint(Sketcher.Constraint("Equal", 26, 29))
sketch4.addConstraint(Sketcher.Constraint("Equal", 27, 30))
sketch4.addConstraint(Sketcher.Constraint("Equal", 29, 32))
sketch4.addConstraint(Sketcher.Constraint("Equal", 30, 33))
sketch4.addConstraint(Sketcher.Constraint("Equal", 32, 35))
sketch4.addConstraint(Sketcher.Constraint("Equal", 33, 36))
sketch4.addConstraint(Sketcher.Constraint("Equal", 35, 38))
sketch4.addConstraint(Sketcher.Constraint("Equal", 36, 39))
sketch4.addConstraint(Sketcher.Constraint("Equal", 38, 41))
sketch4.addConstraint(Sketcher.Constraint("Equal", 39, 42))
sketch4.addConstraint(Sketcher.Constraint("Equal", 41, 44))
sketch4.addConstraint(Sketcher.Constraint("Equal", 42, 45))
sketch4.addConstraint(Sketcher.Constraint("Equal", 44, 47))
sketch4.addConstraint(Sketcher.Constraint("Equal", 45, 48))
sketch4.addConstraint(Sketcher.Constraint("Equal", 47, 50))
sketch4.addConstraint(Sketcher.Constraint("Equal", 48, 51))
sketch4.addConstraint(Sketcher.Constraint("Equal", 50, 53))
sketch4.addConstraint(Sketcher.Constraint("Equal", 51, 54))
sketch4.addConstraint(Sketcher.Constraint("Equal", 53, 56))
sketch4.addConstraint(Sketcher.Constraint("Equal", 54, 57))
sketch4.addConstraint(Sketcher.Constraint("Equal", 56, 59))
sketch4.addConstraint(Sketcher.Constraint("Equal", 57, 60))
sketch4.addConstraint(Sketcher.Constraint("Equal", 59, 62))
sketch4.addConstraint(Sketcher.Constraint("Equal", 60, 63))
sketch4.addConstraint(Sketcher.Constraint("Equal", 62, 65))
sketch4.addConstraint(Sketcher.Constraint("Equal", 63, 66))
sketch4.addConstraint(Sketcher.Constraint("Equal", 65, 68))
sketch4.addConstraint(Sketcher.Constraint("Equal", 66, 69))
sketch4.addConstraint(Sketcher.Constraint("Equal", 68, 71))
sketch4.addConstraint(Sketcher.Constraint("Equal", 69, 72))
sketch4.addConstraint(Sketcher.Constraint("Equal", 71, 74))
sketch4.addConstraint(Sketcher.Constraint("Equal", 72, 75))
sketch4.addConstraint(Sketcher.Constraint("Equal", 74, 77))
sketch4.addConstraint(Sketcher.Constraint("Radius", 1, 19.999999))
sketch4.addConstraint(Sketcher.Constraint("Radius", 7, 20.000002))
sketch4.addConstraint(Sketcher.Constraint("Angle", 15, Q("-162 deg")))
sketch4.addConstraint(Sketcher.Constraint("Angle", 36, Q("-138 deg")))
sketch4.addConstraint(Sketcher.Constraint("Angle", 57, Q("-114 deg")))
sketch4.addConstraint(Sketcher.Constraint("DistanceY", 0, 2, 0, 1, 0.86597))
sketch4.addConstraint(Sketcher.Constraint("DistanceX", 1, 3, -1, 1, 16.711199))
sketch4.addConstraint(Sketcher.Constraint("DistanceY", -1, 1, 1, 3, 90.841402))
sketch4.addConstraint(Sketcher.Constraint("DistanceX", 7, 2, -1, 1, 0.797298))
sketch4.addConstraint(Sketcher.Constraint("DistanceX", -1, 1, 11, 2, 0.0564))
sketch4.addConstraint(Sketcher.Constraint("DistanceX", -1, 1, 57, 2, 2.352902))
sketch4.addConstraint(Sketcher.Constraint("DistanceY", -1, 1, 77, 2, 104.065401))
sketch4.addConstraint(Sketcher.Constraint("Distance", 3, 0.86597))
sketch4.addConstraint(Sketcher.Constraint("DistanceX", 2, 1, 2, 2, 0.816105))
sketch4.addConstraint(Sketcher.Constraint("DistanceY", -1, 1, 3, 2, 76.918881))
sketch4.addConstraint(Sketcher.Constraint("DistanceX", 12, 2, -1, 1, 0.09759))
sketch4.addConstraint(Sketcher.Constraint("DistanceY", -1, 1, 18, 2, 81.76963))
sketch4.addConstraint(Sketcher.Constraint("DistanceX", -1, 1, 21, 2, 1.623651))
sketch4.addConstraint(Sketcher.Constraint("DistanceY", -1, 1, 24, 2, 83.96263))
sketch4.addConstraint(Sketcher.Constraint("DistanceX", -1, 1, 27, 2, 2.446409))
sketch4.addConstraint(Sketcher.Constraint("DistanceY", -1, 1, 30, 2, 86.25404))
sketch4.addConstraint(Sketcher.Constraint("DistanceX", -1, 1, 35, 2, 3.672138))
sketch4.addConstraint(Sketcher.Constraint("DistanceX", -1, 1, 39, 2, 3.261861))
sketch4.addConstraint(Sketcher.Constraint("DistanceX", -1, 1, 42, 2, 3.288171))
sketch4.addConstraint(Sketcher.Constraint("DistanceX", -1, 1, 45, 2, 3.242889))
sketch4.addConstraint(Sketcher.Constraint("DistanceY", -1, 1, 49, 2, 94.561921))
sketch4.addConstraint(Sketcher.Constraint("DistanceX", -1, 1, 51, 2, 2.938451))
sketch4.addConstraint(Sketcher.Constraint("DistanceY", -1, 1, 55, 2, 96.881511))
sketch4.addConstraint(Sketcher.Constraint("DistanceY", -1, 1, 60, 2, 98.017181))
sketch4.addConstraint(Sketcher.Constraint("DistanceX", -1, 1, 63, 2, 1.494619))
sketch4.addConstraint(Sketcher.Constraint("DistanceX", -1, 1, 66, 2, 0.966891))
sketch4.addConstraint(Sketcher.Constraint("DistanceX", -1, 1, 69, 2, 0.375881))
sketch4.addConstraint(Sketcher.Constraint("DistanceY", -1, 1, 73, 2, 103.195719))
pocket2 = body.newObject("PartDesign::Pocket", "Pocket001")
pocket2.Profile = sketch4
pocket2.Type = "ThroughAll"
pocket2.Reversed = True

sketch5 = body.newObject("Sketcher::SketchObject", "Sketch004")
sketch5.AttachmentSupport = (doc.getObject("XY_Plane"), [""])
sketch5.MapMode = "FlatFace"
sketch5.AttachmentOffset = App.Placement(App.Vector(0, 0, -4.8875), App.Rotation())
add_polygon(sketch5, [(-1.489, 76.984), (-1.488, 76.969), (-1.686, 76.969)])
sketch5.addConstraint(Sketcher.Constraint("Horizontal", 1))
sketch5.addConstraint(Sketcher.Constraint("Perpendicular", 0, 2))
sketch5.addConstraint(Sketcher.Constraint("DistanceX", 1, 2, -1, 1, 1.686499))
sketch5.addConstraint(Sketcher.Constraint("DistanceX", 1, 2, 1, 1, 0.198348))
sketch5.addConstraint(Sketcher.Constraint("DistanceX", 2, 2, -1, 1, 1.489259))
sketch5.addConstraint(Sketcher.Constraint("DistanceY", -1, 1, 0, 2, 76.968814))
pocket3 = body.newObject("PartDesign::Pocket", "Pocket002")
pocket3.Profile = sketch5
pocket3.Type = "ThroughAll"
pocket3.Reversed = True

doc.recompute()
